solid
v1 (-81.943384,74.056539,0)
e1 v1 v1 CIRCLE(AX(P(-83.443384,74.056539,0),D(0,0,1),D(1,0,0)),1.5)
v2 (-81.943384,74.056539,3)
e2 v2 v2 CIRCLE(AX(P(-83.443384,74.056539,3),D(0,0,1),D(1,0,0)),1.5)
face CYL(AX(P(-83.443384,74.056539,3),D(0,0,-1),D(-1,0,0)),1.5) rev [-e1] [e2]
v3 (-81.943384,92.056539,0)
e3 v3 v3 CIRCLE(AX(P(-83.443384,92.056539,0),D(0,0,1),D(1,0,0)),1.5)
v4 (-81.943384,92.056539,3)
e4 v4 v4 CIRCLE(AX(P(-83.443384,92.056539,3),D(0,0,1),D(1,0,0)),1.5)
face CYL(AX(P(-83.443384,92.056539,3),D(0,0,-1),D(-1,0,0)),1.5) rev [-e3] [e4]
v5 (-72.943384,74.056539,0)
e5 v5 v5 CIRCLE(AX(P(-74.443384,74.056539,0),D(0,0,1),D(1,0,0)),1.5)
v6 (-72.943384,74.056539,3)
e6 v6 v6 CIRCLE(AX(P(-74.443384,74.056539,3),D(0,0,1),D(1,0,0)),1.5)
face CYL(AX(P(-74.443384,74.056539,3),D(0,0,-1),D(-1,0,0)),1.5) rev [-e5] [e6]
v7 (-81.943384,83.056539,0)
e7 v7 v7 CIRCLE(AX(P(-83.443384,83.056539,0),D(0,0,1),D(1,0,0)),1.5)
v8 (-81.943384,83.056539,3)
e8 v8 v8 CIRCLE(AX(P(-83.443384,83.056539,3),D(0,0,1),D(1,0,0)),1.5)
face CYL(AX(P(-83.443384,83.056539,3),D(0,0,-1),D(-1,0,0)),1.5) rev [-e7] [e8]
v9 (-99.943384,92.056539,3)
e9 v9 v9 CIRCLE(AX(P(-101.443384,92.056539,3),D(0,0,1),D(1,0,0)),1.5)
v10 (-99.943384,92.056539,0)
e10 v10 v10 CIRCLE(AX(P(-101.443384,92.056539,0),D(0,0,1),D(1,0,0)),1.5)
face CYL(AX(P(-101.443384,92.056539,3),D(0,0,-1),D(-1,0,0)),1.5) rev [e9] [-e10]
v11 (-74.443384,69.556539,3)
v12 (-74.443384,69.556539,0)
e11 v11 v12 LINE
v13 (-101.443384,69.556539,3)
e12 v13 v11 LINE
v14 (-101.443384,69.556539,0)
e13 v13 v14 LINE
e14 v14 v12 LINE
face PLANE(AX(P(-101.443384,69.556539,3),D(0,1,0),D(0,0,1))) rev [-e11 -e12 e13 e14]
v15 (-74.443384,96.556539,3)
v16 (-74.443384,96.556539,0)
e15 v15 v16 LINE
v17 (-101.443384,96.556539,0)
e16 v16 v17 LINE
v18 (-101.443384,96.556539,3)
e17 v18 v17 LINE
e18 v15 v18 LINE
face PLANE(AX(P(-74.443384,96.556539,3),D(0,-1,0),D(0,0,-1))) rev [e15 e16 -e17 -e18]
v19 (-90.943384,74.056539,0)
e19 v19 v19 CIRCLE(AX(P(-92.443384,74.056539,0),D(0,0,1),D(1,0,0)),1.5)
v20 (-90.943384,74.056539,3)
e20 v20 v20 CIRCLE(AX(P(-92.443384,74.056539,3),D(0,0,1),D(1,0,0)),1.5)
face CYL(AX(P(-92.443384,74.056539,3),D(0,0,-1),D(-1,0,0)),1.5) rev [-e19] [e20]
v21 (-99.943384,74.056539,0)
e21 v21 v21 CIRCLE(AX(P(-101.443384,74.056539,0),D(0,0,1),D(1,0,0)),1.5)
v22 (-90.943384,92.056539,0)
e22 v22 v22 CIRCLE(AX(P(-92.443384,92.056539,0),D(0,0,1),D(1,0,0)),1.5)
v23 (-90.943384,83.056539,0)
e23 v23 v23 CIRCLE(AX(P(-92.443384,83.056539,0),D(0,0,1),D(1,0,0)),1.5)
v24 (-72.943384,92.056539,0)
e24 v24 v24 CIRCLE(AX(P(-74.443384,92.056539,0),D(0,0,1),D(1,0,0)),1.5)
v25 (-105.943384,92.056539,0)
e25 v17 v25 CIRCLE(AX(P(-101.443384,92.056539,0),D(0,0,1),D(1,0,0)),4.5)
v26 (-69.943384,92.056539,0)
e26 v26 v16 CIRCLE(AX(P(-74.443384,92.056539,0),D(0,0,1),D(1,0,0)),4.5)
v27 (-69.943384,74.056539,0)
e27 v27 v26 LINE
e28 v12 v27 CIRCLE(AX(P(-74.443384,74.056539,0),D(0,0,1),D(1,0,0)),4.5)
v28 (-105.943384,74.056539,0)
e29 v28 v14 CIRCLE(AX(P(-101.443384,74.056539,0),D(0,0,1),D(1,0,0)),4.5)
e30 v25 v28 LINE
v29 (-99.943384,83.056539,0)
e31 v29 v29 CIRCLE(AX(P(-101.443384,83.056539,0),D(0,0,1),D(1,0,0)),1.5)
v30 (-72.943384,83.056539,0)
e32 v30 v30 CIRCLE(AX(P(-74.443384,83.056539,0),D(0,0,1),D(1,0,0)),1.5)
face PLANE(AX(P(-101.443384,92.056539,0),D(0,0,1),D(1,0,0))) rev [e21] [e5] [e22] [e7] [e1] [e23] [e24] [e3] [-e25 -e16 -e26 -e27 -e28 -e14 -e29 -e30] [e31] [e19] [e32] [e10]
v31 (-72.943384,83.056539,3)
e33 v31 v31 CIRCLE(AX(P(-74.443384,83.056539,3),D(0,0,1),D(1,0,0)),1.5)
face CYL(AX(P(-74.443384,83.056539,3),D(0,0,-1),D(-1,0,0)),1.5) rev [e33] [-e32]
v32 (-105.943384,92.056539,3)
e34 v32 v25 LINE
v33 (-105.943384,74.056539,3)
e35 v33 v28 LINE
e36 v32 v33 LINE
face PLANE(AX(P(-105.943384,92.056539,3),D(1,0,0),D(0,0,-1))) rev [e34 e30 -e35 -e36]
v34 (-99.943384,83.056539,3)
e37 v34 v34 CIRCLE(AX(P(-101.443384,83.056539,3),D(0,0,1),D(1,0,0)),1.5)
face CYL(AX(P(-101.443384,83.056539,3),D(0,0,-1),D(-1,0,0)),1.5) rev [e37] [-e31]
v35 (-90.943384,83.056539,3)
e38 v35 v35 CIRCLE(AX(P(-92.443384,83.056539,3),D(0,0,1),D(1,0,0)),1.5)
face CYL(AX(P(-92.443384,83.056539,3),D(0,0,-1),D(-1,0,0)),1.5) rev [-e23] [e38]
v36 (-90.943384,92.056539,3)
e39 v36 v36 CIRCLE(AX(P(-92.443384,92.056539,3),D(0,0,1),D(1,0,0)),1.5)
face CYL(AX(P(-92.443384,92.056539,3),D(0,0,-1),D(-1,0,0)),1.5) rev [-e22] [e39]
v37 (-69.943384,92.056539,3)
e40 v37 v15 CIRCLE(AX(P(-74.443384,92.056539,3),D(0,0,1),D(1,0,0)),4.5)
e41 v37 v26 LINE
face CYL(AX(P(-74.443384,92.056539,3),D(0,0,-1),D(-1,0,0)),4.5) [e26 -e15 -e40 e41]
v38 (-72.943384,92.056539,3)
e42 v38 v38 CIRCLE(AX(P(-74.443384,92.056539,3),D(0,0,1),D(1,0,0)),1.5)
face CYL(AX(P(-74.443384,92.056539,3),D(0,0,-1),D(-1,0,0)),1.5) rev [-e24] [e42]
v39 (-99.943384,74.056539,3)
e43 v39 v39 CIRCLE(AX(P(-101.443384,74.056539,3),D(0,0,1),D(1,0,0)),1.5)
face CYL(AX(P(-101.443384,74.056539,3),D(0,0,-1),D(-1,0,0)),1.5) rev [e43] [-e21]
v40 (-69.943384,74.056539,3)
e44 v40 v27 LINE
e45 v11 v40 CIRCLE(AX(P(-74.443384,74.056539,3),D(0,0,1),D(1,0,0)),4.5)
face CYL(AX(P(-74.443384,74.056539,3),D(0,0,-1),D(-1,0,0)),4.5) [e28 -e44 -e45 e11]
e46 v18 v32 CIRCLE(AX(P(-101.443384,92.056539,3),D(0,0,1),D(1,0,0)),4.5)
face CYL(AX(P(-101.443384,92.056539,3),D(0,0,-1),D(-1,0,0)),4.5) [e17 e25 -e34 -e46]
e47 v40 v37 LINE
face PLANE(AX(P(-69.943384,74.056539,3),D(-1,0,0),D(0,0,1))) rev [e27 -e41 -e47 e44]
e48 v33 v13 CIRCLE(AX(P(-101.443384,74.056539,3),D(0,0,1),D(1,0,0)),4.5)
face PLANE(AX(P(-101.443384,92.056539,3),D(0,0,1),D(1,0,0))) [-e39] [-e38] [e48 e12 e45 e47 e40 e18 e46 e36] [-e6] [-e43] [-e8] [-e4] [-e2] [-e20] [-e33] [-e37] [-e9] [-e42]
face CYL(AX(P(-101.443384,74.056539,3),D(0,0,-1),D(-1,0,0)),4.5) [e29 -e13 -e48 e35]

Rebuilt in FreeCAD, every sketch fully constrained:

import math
import FreeCAD as App
import Part
import Sketcher
from FreeCAD import Vector
Q = App.Units.Quantity

doc = App.newDocument("Part")
body = doc.addObject("PartDesign::Body", "Body")

sketch1 = body.newObject("Sketcher::SketchObject", "Sketch")
sketch1.AttachmentSupport = (doc.getObject("XY_Plane"), [""])
sketch1.MapMode = "FlatFace"
sketch1.addGeometry(Part.LineSegment(Vector(-105.943384, 92.056539, 0), Vector(-105.943384, 74.056539, 0)), False)
sketch1.addGeometry(Part.ArcOfCircle(Part.Circle(Vector(-101.443384, 74.056539, 0), Vector(0, 0, 1), 4.5), math.radians(-180), math.radians(-90)), False)
sketch1.addGeometry(Part.LineSegment(Vector(-101.443384, 69.556539, 0), Vector(-74.443384, 69.556539, 0)), False)
sketch1.addGeometry(Part.ArcOfCircle(Part.Circle(Vector(-74.443384, 74.056539, 0), Vector(0, 0, 1), 4.5), math.radians(-90), math.radians(0)), False)
sketch1.addGeometry(Part.LineSegment(Vector(-69.943384, 74.056539, 0), Vector(-69.943384, 92.056539, 0)), False)
sketch1.addGeometry(Part.ArcOfCircle(Part.Circle(Vector(-74.443384, 92.056539, 0), Vector(0, 0, 1), 4.5), math.radians(0), math.radians(90)), False)
sketch1.addGeometry(Part.LineSegment(Vector(-74.443384, 96.556539, 0), Vector(-101.443384, 96.556539, 0)), False)
sketch1.addGeometry(Part.ArcOfCircle(Part.Circle(Vector(-101.443384, 92.056539, 0), Vector(0, 0, 1), 4.5), math.radians(90), math.radians(180)), False)
sketch1.addGeometry(Part.Circle(Vector(-101.443384, 74.056539, 0), Vector(0, 0, 1), 1.5), False)
sketch1.addGeometry(Part.Circle(Vector(-92.443384, 74.056539, 0), Vector(0, 0, 1), 1.5), False)
sketch1.addGeometry(Part.Circle(Vector(-83.443384, 74.056539, 0), Vector(0, 0, 1), 1.5), False)
sketch1.addGeometry(Part.Circle(Vector(-74.443384, 74.056539, 0), Vector(0, 0, 1), 1.5), False)
sketch1.addGeometry(Part.Circle(Vector(-101.443384, 83.056539, 0), Vector(0, 0, 1), 1.5), False)
sketch1.addGeometry(Part.Circle(Vector(-92.443384, 83.056539, 0), Vector(0, 0, 1), 1.5), False)
sketch1.addGeometry(Part.Circle(Vector(-101.443384, 92.056539, 0), Vector(0, 0, 1), 1.5), False)
sketch1.addGeometry(Part.Circle(Vector(-92.443384, 92.056539, 0), Vector(0, 0, 1), 1.5), False)
sketch1.addGeometry(Part.Circle(Vector(-83.443384, 83.056539, 0), Vector(0, 0, 1), 1.5), False)
sketch1.addGeometry(Part.Circle(Vector(-74.443384, 83.056539, 0), Vector(0, 0, 1), 1.5), False)
sketch1.addGeometry(Part.Circle(Vector(-83.443384, 92.056539, 0), Vector(0, 0, 1), 1.5), False)
sketch1.addGeometry(Part.Circle(Vector(-74.443384, 92.056539, 0), Vector(0, 0, 1), 1.5), False)
sketch1.addConstraint(Sketcher.Constraint("Tangent", 0, 2, 1, 1))
sketch1.addConstraint(Sketcher.Constraint("Tangent", 1, 2, 2, 1))
sketch1.addConstraint(Sketcher.Constraint("Tangent", 2, 2, 3, 1))
sketch1.addConstraint(Sketcher.Constraint("Tangent", 3, 2, 4, 1))
sketch1.addConstraint(Sketcher.Constraint("Tangent", 4, 2, 5, 1))
sketch1.addConstraint(Sketcher.Constraint("Tangent", 5, 2, 6, 1))
sketch1.addConstraint(Sketcher.Constraint("Tangent", 6, 2, 7, 1))
sketch1.addConstraint(Sketcher.Constraint("Tangent", 7, 2, 0, 1))
sketch1.addConstraint(Sketcher.Constraint("Vertical", 0))
sketch1.addConstraint(Sketcher.Constraint("Horizontal", 2))
sketch1.addConstraint(Sketcher.Constraint("Vertical", 4))
sketch1.addConstraint(Sketcher.Constraint("Horizontal", 6))
sketch1.addConstraint(Sketcher.Constraint("Coincident", 8, 3, 1, 3))
sketch1.addConstraint(Sketcher.Constraint("Coincident", 11, 3, 3, 3))
sketch1.addConstraint(Sketcher.Constraint("Coincident", 14, 3, 7, 3))
sketch1.addConstraint(Sketcher.Constraint("Coincident", 19, 3, 5, 3))
sketch1.addConstraint(Sketcher.Constraint("Equal", 1, 3))
sketch1.addConstraint(Sketcher.Constraint("Equal", 3, 5))
sketch1.addConstraint(Sketcher.Constraint("Equal", 5, 7))
sketch1.addConstraint(Sketcher.Constraint("Equal", 8, 9))
sketch1.addConstraint(Sketcher.Constraint("Equal", 9, 10))
sketch1.addConstraint(Sketcher.Constraint("Equal", 10, 11))
sketch1.addConstraint(Sketcher.Constraint("Equal", 11, 12))
sketch1.addConstraint(Sketcher.Constraint("Equal", 12, 13))
sketch1.addConstraint(Sketcher.Constraint("Equal", 13, 14))
sketch1.addConstraint(Sketcher.Constraint("Equal", 14, 15))
sketch1.addConstraint(Sketcher.Constraint("Equal", 15, 16))
sketch1.addConstraint(Sketcher.Constraint("Equal", 16, 17))
sketch1.addConstraint(Sketcher.Constraint("Equal", 17, 18))
sketch1.addConstraint(Sketcher.Constraint("Equal", 18, 19))
sketch1.addConstraint(Sketcher.Constraint("Horizontal", 8, 3, 9, 3))
sketch1.addConstraint(Sketcher.Constraint("Horizontal", 9, 3, 10, 3))
sketch1.addConstraint(Sketcher.Constraint("Horizontal", 12, 3, 13, 3))
sketch1.addConstraint(Sketcher.Constraint("Horizontal", 14, 3, 15, 3))
sketch1.addConstraint(Sketcher.Constraint("Horizontal", 13, 3, 16, 3))
sketch1.addConstraint(Sketcher.Constraint("Horizontal", 16, 3, 17, 3))
sketch1.addConstraint(Sketcher.Constraint("Horizontal", 15, 3, 18, 3))
sketch1.addConstraint(Sketcher.Constraint("Vertical", 8, 3, 12, 3))
sketch1.addConstraint(Sketcher.Constraint("Vertical", 9, 3, 13, 3))
sketch1.addConstraint(Sketcher.Constraint("Vertical", 13, 3, 15, 3))
sketch1.addConstraint(Sketcher.Constraint("Vertical", 10, 3, 16, 3))
sketch1.addConstraint(Sketcher.Constraint("Vertical", 11, 3, 17, 3))
sketch1.addConstraint(Sketcher.Constraint("Vertical", 16, 3, 18, 3))
sketch1.addConstraint(Sketcher.Constraint("Diameter", 8, Q("3 mm")))
sketch1.addConstraint(Sketcher.Constraint("Radius", 1, Q("4.5 mm")))
sketch1.addConstraint(Sketcher.Constraint("DistanceX", 2, 1, 2, 2, Q("27 mm")))
sketch1.addConstraint(Sketcher.Constraint("DistanceY", 0, 2, 0, 1, Q("18 mm")))
sketch1.addConstraint(Sketcher.Constraint("DistanceX", 1, 3, 9, 3, Q("9 mm")))
sketch1.addConstraint(Sketcher.Constraint("DistanceX", 10, 3, 3, 3, Q("9 mm")))
sketch1.addConstraint(Sketcher.Constraint("DistanceY", 1, 3, 12, 3, Q("9 mm")))
sketch1.addConstraint(Sketcher.Constraint("DistanceY", -1, 1, 1, 3, Q("74.056539 mm")))
sketch1.addConstraint(Sketcher.Constraint("DistanceX", 1, 3, -1, 1, Q("101.443384 mm")))
pad1 = body.newObject("PartDesign::Pad", "Pad")
pad1.Profile = sketch1
pad1.Length = 3

doc.recompute()
